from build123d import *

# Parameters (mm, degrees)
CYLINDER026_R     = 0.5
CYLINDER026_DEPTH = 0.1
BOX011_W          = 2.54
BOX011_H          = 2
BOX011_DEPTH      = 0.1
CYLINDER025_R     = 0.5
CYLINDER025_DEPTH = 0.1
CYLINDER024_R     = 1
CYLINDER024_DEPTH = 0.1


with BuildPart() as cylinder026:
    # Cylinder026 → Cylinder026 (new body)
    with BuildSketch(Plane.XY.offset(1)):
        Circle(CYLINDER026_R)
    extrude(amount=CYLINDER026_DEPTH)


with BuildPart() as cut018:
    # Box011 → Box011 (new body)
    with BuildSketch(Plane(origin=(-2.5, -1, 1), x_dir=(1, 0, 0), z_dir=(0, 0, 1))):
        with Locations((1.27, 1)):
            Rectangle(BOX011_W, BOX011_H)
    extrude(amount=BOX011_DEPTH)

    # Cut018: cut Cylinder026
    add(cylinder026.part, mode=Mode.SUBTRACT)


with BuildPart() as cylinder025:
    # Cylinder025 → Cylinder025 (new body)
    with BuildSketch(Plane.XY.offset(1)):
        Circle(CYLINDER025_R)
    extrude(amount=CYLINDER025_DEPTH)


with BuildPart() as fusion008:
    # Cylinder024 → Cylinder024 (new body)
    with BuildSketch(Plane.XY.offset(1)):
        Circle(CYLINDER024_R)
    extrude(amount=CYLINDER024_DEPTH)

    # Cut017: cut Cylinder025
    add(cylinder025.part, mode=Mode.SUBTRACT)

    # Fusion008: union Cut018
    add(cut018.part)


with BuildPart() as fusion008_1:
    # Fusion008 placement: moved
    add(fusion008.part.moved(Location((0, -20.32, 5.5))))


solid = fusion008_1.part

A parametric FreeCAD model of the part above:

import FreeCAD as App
import Part
import Sketcher

V = App.Vector

doc = App.newDocument("Part")
params = doc.addObject("Spreadsheet::Sheet", "Params")
for row, (alias, value) in enumerate([
    ("sketch1_diameter", "1 mm"),
    ("pad1_length", "0.1 mm"),
    ("sketch2_height", "2 mm"),
    ("sketch2_width", "2.54 mm"),
    ("pad2_length", "0.1 mm"),
    ("sketch3_diameter", "1 mm"),
    ("pad3_length", "0.1 mm"),
    ("sketch4_diameter", "2 mm"),
    ("pad4_length", "0.1 mm"),
], start=1):
    params.set(f"A{row}", alias)
    params.set(f"B{row}", "=" + value)
    params.setAlias(f"B{row}", alias)

body = doc.addObject("PartDesign::Body", "Body")

# Sketch on XY plane
sketch1 = body.newObject("Sketcher::SketchObject", "Sketch")
sketch1.AttachmentSupport = (doc.getObject("XY_Plane"), [""])
sketch1.MapMode = "FlatFace"
sketch1.AttachmentOffset = App.Placement(V(0, 0, 1), App.Rotation())
sketch1.addGeometry(Part.Circle(V(0, 0, 0), V(0, 0, 1), 0.5), False)
sketch1.addConstraint([
    Sketcher.Constraint("Coincident", 0, 3, -1, 1),
    Sketcher.Constraint("Diameter", 0, 1.0),
])
sketch1.setExpression("Constraints[1]", "Params.sketch1_diameter")
pad1 = body.newObject("PartDesign::Pad", "Pad")
pad1.Profile = sketch1
pad1.setExpression("Length", "Params.pad1_length")
body2 = doc.addObject("PartDesign::Body", "Body001")

# Sketch on XY plane
sketch2 = body2.newObject("Sketcher::SketchObject", "Sketch001")
sketch2.AttachmentSupport = (doc.getObject("XY_Plane001"), [""])
sketch2.MapMode = "FlatFace"
sketch2.AttachmentOffset = App.Placement(V(0, 0, 1), App.Rotation())
sketch2.addGeometry([
    Part.LineSegment(V(-2.5, 1, 0), V(-2.5, -1, 0)),
    Part.LineSegment(V(-2.5, -1, 0), V(0, -1, 0)),
    Part.LineSegment(V(0, -1, 0), V(0, 1, 0)),
    Part.LineSegment(V(0, 1, 0), V(-2.5, 1, 0)),
], False)
sketch2.addConstraint([
    Sketcher.Constraint("Coincident", 0, 2, 1, 1),
    Sketcher.Constraint("Coincident", 1, 2, 2, 1),
    Sketcher.Constraint("Coincident", 2, 2, 3, 1),
    Sketcher.Constraint("Coincident", 3, 2, 0, 1),
    Sketcher.Constraint("Vertical", 0),
    Sketcher.Constraint("Horizontal", 1),
    Sketcher.Constraint("Vertical", 2),
    Sketcher.Constraint("Horizontal", 3),
    Sketcher.Constraint("DistanceY", 0, 2, 0, 1, 2.0),
    Sketcher.Constraint("DistanceY", 0, 2, -1, 1, 1.0),
    Sketcher.Constraint("DistanceX", 1, 1, 1, 2, 2.54),
    Sketcher.Constraint("DistanceX", 0, 2, -1, 1, 2.5),
])
sketch2.setExpression("Constraints[8]", "Params.sketch2_height")
sketch2.setExpression("Constraints[10]", "Params.sketch2_width")
pad2 = body2.newObject("PartDesign::Pad", "Pad001")
pad2.Profile = sketch2
pad2.setExpression("Length", "Params.pad2_length")
doc.recompute()

boolean = body2.newObject("PartDesign::Boolean", "Boolean")
boolean.Type = "Cut"
boolean.addObjects([body])
body3 = doc.addObject("PartDesign::Body", "Body002")

# Sketch on XY plane
sketch3 = body3.newObject("Sketcher::SketchObject", "Sketch002")
sketch3.AttachmentSupport = (doc.getObject("XY_Plane002"), [""])
sketch3.MapMode = "FlatFace"
sketch3.AttachmentOffset = App.Placement(V(0, 0, 1), App.Rotation())
sketch3.addGeometry(Part.Circle(V(0, 0, 0), V(0, 0, 1), 0.5), False)
sketch3.addConstraint([
    Sketcher.Constraint("Coincident", 0, 3, -1, 1),
    Sketcher.Constraint("Diameter", 0, 1.0),
])
sketch3.setExpression("Constraints[1]", "Params.sketch3_diameter")
pad3 = body3.newObject("PartDesign::Pad", "Pad002")
pad3.Profile = sketch3
pad3.setExpression("Length", "Params.pad3_length")
body4 = doc.addObject("PartDesign::Body", "Body003")

# Sketch on XY plane
sketch4 = body4.newObject("Sketcher::SketchObject", "Sketch003")
sketch4.AttachmentSupport = (doc.getObject("XY_Plane003"), [""])
sketch4.MapMode = "FlatFace"
sketch4.AttachmentOffset = App.Placement(V(0, 0, 1), App.Rotation())
sketch4.addGeometry(Part.Circle(V(0, 0, 0), V(0, 0, 1), 1), False)
sketch4.addConstraint([
    Sketcher.Constraint("Coincident", 0, 3, -1, 1),
    Sketcher.Constraint("Diameter", 0, 2.0),
])
sketch4.setExpression("Constraints[1]", "Params.sketch4_diameter")
pad4 = body4.newObject("PartDesign::Pad", "Pad003")
pad4.Profile = sketch4
pad4.setExpression("Length", "Params.pad4_length")
doc.recompute()

boolean2 = body4.newObject("PartDesign::Boolean", "Boolean001")
boolean2.Type = "Cut"
boolean2.addObjects([body3])
doc.recompute()

boolean3 = body4.newObject("PartDesign::Boolean", "Boolean002")
boolean3.Type = "Fuse"
boolean3.addObjects([body2])
body5 = doc.addObject("PartDesign::Body", "Body004")
doc.recompute()

body4.Placement = App.Placement(V(0, -20.32, 5.5), App.Rotation(V(0, 0, 1), 0))
boolean4 = body5.newObject("PartDesign::Boolean", "Boolean003")
boolean4.Type = "Fuse"
boolean4.addObjects([body4])

doc.recompute()
